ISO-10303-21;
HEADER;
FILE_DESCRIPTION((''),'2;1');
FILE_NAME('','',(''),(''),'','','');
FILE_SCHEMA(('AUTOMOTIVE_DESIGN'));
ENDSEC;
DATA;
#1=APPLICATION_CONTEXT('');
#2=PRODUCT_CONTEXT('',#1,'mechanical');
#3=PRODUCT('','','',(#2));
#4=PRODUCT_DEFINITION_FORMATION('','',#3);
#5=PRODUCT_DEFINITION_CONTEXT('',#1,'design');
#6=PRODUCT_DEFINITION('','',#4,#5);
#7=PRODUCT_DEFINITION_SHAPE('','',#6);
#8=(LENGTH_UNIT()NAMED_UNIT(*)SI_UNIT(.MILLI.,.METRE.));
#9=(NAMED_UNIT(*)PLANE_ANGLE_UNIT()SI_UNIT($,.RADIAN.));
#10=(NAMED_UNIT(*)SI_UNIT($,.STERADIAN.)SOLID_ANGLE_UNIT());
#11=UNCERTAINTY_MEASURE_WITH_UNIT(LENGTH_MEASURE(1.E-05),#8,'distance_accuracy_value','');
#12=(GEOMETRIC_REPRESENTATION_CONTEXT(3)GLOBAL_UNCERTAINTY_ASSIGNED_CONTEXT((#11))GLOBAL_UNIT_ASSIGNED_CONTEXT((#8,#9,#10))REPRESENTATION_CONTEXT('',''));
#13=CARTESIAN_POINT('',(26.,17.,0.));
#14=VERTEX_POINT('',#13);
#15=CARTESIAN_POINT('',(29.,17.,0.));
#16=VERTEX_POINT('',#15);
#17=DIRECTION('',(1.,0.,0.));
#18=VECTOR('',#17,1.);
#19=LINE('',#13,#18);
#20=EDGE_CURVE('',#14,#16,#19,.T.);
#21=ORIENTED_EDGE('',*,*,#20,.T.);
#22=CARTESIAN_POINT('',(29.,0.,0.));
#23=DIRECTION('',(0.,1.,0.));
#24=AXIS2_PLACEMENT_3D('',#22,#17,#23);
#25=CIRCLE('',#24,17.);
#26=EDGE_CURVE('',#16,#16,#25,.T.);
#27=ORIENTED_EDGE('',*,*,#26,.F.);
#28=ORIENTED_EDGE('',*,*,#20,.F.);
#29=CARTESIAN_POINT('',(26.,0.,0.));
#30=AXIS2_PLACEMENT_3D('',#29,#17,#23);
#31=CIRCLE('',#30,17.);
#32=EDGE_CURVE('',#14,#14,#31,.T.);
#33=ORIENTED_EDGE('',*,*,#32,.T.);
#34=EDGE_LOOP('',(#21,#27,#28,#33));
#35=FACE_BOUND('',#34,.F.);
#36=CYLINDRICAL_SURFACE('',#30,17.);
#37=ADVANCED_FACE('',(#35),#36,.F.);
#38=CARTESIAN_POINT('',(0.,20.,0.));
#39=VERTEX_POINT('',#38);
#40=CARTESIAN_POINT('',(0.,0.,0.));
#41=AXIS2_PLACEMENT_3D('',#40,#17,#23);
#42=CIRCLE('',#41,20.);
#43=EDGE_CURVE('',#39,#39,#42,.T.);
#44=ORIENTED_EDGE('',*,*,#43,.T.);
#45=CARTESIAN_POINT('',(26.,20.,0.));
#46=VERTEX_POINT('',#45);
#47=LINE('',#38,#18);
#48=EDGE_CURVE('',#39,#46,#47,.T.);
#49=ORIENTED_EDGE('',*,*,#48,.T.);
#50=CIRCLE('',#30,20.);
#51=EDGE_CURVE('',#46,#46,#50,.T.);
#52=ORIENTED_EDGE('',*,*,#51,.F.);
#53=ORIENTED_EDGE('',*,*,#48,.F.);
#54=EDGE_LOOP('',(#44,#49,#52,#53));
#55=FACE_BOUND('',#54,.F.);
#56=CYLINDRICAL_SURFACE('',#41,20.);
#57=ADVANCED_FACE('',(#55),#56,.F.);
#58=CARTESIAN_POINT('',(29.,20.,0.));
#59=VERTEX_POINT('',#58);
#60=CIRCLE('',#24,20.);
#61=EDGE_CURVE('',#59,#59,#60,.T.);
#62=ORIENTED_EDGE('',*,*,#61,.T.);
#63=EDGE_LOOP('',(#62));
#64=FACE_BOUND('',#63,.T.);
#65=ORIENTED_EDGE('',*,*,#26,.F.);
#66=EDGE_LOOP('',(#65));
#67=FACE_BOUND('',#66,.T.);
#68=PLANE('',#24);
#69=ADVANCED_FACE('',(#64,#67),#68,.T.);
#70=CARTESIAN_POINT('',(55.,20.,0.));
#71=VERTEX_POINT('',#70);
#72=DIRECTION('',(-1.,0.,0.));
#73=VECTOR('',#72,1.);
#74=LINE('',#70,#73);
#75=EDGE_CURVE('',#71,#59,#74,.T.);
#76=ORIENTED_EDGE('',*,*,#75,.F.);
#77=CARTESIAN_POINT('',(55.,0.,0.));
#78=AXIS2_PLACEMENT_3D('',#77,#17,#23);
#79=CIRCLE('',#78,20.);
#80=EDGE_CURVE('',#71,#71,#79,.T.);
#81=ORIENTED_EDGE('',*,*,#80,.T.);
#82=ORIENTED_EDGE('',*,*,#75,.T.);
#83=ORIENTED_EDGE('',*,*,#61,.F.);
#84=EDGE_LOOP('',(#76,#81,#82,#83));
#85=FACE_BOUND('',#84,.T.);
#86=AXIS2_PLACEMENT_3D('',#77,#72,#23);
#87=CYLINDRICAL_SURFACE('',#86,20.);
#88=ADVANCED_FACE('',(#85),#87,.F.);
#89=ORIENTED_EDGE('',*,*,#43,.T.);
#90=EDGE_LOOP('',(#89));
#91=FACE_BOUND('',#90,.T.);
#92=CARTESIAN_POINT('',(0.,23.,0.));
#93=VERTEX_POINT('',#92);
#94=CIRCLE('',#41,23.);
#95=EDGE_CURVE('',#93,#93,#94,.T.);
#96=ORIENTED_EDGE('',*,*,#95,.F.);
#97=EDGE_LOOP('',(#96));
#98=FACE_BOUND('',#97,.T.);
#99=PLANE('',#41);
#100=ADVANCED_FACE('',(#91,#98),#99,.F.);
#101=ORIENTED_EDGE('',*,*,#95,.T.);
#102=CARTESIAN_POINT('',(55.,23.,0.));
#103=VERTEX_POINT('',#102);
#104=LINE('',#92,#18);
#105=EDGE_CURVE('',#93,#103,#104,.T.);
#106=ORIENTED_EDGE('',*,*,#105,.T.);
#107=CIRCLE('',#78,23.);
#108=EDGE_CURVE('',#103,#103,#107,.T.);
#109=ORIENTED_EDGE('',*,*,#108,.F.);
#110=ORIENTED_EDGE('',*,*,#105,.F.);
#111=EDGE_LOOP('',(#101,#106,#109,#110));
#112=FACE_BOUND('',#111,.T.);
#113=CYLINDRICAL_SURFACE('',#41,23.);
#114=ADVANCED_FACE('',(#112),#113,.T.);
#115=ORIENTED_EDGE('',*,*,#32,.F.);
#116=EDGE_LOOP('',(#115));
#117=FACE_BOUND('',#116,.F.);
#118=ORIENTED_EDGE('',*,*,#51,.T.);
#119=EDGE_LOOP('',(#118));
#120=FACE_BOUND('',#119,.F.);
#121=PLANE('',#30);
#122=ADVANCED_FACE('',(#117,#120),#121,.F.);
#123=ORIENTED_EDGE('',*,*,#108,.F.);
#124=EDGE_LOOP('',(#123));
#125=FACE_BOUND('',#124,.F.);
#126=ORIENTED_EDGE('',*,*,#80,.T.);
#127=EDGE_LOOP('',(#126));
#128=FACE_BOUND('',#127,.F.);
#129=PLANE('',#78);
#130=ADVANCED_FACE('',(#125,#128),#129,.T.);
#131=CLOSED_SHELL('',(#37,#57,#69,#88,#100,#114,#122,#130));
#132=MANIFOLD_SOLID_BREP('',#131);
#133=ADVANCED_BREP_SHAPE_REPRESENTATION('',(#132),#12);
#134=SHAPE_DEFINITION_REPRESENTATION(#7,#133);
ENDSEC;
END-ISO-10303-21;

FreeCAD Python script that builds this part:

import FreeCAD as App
import Part
import Sketcher
from FreeCAD import Vector
Q = App.Units.Quantity


def add_polygon(sketch, points):
    """Adds a closed chain of lines whose ends are joined by coincident constraints."""
    first, n = sketch.GeometryCount, len(points)
    for a, b in zip(points, points[1:] + points[:1]):
        sketch.addGeometry(Part.LineSegment(App.Vector(*a, 0), App.Vector(*b, 0)), False)
    for i in range(n):
        sketch.addConstraint(Sketcher.Constraint("Coincident", first + i, 2, first + (i + 1) % n, 1))

doc = App.newDocument("Part")
body = doc.addObject("PartDesign::Body", "Body")

# Sketch on XY plane
sketch1 = doc.addObject("Sketcher::SketchObject", "Sketch")
body.addObject(sketch1)
sketch1.AttachmentSupport = (doc.XY_Plane, [""])
sketch1.MapMode = "FlatFace"
add_polygon(sketch1, [(0, 23), (0, 20), (26, 20), (26, 17), (29, 17), (29, 20), (55, 20), (55, 23)])  # lines 0-7
sketch1.addConstraint(Sketcher.Constraint("Vertical", 0))
sketch1.addConstraint(Sketcher.Constraint("Horizontal", 1))
sketch1.addConstraint(Sketcher.Constraint("Vertical", 2))
sketch1.addConstraint(Sketcher.Constraint("Horizontal", 3))
sketch1.addConstraint(Sketcher.Constraint("Vertical", 4))
sketch1.addConstraint(Sketcher.Constraint("Horizontal", 5))
sketch1.addConstraint(Sketcher.Constraint("Vertical", 6))
sketch1.addConstraint(Sketcher.Constraint("Horizontal", 7))
sketch1.addConstraint(Sketcher.Constraint("PointOnObject", 0, 2, -2))
sketch1.addConstraint(Sketcher.Constraint("Horizontal", 1, 2, 4, 2))
sketch1.addConstraint(Sketcher.Constraint("Equal", 1, 5))
sketch1.addConstraint(Sketcher.Constraint("Equal", 3, 0))
sketch1.addConstraint(Sketcher.Constraint("Equal", 0, 2))
sketch1.addConstraint(Sketcher.Constraint("DistanceX", 1, 1, 1, 2, Q("26 mm")))
sketch1.addConstraint(Sketcher.Constraint("DistanceX", 3, 1, 3, 2, Q("3 mm")))
sketch1.addConstraint(Sketcher.Constraint("DistanceY", -1, 1, 0, 2, Q("20 mm")))
revolution = doc.addObject("PartDesign::Revolution", "Revolution")
body.addObject(revolution)
revolution.Profile = sketch1
revolution.ReferenceAxis = (sketch1, ["H_Axis"])
revolution.Angle = 360

doc.recompute()
